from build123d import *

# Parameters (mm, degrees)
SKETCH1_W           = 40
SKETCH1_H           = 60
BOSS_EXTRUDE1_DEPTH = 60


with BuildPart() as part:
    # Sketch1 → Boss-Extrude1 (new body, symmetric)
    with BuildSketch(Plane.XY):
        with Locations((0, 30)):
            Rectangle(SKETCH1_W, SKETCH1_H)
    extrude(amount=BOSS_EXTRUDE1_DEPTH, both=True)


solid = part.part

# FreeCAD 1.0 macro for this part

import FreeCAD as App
import Part
import Sketcher


def add_polygon(sketch, points):
    """Adds a closed chain of lines whose ends are joined by coincident constraints."""
    first, n = sketch.GeometryCount, len(points)
    for a, b in zip(points, points[1:] + points[:1]):
        sketch.addGeometry(Part.LineSegment(App.Vector(*a, 0), App.Vector(*b, 0)), False)
    for i in range(n):
        sketch.addConstraint(Sketcher.Constraint("Coincident", first + i, 2, first + (i + 1) % n, 1))

doc = App.newDocument("Part")
body = doc.addObject("PartDesign::Body", "Body")

# Sketch on XY plane
sketch1 = body.newObject("Sketcher::SketchObject", "Sketch")
sketch1.AttachmentSupport = (doc.getObject("XY_Plane"), [""])
sketch1.MapMode = "FlatFace"
add_polygon(sketch1, [(-20, 60), (-20, 0), (20, 0), (20, 60)])  # lines 0-3
sketch1.addConstraint(Sketcher.Constraint("Vertical", 0))
sketch1.addConstraint(Sketcher.Constraint("Horizontal", 1))
sketch1.addConstraint(Sketcher.Constraint("Vertical", 2))
sketch1.addConstraint(Sketcher.Constraint("Horizontal", 3))
sketch1.addConstraint(Sketcher.Constraint("Symmetric", 0, 2, 1, 2, -1, 1))
sketch1.addConstraint(Sketcher.Constraint("DistanceX", 1, 1, 1, 2, 40.0))
sketch1.addConstraint(Sketcher.Constraint("DistanceY", 0, 2, 0, 1, 60.0))
pad1 = body.newObject("PartDesign::Pad", "Pad")
pad1.Profile = sketch1
pad1.Length = 120
pad1.Midplane = True

doc.recompute()
